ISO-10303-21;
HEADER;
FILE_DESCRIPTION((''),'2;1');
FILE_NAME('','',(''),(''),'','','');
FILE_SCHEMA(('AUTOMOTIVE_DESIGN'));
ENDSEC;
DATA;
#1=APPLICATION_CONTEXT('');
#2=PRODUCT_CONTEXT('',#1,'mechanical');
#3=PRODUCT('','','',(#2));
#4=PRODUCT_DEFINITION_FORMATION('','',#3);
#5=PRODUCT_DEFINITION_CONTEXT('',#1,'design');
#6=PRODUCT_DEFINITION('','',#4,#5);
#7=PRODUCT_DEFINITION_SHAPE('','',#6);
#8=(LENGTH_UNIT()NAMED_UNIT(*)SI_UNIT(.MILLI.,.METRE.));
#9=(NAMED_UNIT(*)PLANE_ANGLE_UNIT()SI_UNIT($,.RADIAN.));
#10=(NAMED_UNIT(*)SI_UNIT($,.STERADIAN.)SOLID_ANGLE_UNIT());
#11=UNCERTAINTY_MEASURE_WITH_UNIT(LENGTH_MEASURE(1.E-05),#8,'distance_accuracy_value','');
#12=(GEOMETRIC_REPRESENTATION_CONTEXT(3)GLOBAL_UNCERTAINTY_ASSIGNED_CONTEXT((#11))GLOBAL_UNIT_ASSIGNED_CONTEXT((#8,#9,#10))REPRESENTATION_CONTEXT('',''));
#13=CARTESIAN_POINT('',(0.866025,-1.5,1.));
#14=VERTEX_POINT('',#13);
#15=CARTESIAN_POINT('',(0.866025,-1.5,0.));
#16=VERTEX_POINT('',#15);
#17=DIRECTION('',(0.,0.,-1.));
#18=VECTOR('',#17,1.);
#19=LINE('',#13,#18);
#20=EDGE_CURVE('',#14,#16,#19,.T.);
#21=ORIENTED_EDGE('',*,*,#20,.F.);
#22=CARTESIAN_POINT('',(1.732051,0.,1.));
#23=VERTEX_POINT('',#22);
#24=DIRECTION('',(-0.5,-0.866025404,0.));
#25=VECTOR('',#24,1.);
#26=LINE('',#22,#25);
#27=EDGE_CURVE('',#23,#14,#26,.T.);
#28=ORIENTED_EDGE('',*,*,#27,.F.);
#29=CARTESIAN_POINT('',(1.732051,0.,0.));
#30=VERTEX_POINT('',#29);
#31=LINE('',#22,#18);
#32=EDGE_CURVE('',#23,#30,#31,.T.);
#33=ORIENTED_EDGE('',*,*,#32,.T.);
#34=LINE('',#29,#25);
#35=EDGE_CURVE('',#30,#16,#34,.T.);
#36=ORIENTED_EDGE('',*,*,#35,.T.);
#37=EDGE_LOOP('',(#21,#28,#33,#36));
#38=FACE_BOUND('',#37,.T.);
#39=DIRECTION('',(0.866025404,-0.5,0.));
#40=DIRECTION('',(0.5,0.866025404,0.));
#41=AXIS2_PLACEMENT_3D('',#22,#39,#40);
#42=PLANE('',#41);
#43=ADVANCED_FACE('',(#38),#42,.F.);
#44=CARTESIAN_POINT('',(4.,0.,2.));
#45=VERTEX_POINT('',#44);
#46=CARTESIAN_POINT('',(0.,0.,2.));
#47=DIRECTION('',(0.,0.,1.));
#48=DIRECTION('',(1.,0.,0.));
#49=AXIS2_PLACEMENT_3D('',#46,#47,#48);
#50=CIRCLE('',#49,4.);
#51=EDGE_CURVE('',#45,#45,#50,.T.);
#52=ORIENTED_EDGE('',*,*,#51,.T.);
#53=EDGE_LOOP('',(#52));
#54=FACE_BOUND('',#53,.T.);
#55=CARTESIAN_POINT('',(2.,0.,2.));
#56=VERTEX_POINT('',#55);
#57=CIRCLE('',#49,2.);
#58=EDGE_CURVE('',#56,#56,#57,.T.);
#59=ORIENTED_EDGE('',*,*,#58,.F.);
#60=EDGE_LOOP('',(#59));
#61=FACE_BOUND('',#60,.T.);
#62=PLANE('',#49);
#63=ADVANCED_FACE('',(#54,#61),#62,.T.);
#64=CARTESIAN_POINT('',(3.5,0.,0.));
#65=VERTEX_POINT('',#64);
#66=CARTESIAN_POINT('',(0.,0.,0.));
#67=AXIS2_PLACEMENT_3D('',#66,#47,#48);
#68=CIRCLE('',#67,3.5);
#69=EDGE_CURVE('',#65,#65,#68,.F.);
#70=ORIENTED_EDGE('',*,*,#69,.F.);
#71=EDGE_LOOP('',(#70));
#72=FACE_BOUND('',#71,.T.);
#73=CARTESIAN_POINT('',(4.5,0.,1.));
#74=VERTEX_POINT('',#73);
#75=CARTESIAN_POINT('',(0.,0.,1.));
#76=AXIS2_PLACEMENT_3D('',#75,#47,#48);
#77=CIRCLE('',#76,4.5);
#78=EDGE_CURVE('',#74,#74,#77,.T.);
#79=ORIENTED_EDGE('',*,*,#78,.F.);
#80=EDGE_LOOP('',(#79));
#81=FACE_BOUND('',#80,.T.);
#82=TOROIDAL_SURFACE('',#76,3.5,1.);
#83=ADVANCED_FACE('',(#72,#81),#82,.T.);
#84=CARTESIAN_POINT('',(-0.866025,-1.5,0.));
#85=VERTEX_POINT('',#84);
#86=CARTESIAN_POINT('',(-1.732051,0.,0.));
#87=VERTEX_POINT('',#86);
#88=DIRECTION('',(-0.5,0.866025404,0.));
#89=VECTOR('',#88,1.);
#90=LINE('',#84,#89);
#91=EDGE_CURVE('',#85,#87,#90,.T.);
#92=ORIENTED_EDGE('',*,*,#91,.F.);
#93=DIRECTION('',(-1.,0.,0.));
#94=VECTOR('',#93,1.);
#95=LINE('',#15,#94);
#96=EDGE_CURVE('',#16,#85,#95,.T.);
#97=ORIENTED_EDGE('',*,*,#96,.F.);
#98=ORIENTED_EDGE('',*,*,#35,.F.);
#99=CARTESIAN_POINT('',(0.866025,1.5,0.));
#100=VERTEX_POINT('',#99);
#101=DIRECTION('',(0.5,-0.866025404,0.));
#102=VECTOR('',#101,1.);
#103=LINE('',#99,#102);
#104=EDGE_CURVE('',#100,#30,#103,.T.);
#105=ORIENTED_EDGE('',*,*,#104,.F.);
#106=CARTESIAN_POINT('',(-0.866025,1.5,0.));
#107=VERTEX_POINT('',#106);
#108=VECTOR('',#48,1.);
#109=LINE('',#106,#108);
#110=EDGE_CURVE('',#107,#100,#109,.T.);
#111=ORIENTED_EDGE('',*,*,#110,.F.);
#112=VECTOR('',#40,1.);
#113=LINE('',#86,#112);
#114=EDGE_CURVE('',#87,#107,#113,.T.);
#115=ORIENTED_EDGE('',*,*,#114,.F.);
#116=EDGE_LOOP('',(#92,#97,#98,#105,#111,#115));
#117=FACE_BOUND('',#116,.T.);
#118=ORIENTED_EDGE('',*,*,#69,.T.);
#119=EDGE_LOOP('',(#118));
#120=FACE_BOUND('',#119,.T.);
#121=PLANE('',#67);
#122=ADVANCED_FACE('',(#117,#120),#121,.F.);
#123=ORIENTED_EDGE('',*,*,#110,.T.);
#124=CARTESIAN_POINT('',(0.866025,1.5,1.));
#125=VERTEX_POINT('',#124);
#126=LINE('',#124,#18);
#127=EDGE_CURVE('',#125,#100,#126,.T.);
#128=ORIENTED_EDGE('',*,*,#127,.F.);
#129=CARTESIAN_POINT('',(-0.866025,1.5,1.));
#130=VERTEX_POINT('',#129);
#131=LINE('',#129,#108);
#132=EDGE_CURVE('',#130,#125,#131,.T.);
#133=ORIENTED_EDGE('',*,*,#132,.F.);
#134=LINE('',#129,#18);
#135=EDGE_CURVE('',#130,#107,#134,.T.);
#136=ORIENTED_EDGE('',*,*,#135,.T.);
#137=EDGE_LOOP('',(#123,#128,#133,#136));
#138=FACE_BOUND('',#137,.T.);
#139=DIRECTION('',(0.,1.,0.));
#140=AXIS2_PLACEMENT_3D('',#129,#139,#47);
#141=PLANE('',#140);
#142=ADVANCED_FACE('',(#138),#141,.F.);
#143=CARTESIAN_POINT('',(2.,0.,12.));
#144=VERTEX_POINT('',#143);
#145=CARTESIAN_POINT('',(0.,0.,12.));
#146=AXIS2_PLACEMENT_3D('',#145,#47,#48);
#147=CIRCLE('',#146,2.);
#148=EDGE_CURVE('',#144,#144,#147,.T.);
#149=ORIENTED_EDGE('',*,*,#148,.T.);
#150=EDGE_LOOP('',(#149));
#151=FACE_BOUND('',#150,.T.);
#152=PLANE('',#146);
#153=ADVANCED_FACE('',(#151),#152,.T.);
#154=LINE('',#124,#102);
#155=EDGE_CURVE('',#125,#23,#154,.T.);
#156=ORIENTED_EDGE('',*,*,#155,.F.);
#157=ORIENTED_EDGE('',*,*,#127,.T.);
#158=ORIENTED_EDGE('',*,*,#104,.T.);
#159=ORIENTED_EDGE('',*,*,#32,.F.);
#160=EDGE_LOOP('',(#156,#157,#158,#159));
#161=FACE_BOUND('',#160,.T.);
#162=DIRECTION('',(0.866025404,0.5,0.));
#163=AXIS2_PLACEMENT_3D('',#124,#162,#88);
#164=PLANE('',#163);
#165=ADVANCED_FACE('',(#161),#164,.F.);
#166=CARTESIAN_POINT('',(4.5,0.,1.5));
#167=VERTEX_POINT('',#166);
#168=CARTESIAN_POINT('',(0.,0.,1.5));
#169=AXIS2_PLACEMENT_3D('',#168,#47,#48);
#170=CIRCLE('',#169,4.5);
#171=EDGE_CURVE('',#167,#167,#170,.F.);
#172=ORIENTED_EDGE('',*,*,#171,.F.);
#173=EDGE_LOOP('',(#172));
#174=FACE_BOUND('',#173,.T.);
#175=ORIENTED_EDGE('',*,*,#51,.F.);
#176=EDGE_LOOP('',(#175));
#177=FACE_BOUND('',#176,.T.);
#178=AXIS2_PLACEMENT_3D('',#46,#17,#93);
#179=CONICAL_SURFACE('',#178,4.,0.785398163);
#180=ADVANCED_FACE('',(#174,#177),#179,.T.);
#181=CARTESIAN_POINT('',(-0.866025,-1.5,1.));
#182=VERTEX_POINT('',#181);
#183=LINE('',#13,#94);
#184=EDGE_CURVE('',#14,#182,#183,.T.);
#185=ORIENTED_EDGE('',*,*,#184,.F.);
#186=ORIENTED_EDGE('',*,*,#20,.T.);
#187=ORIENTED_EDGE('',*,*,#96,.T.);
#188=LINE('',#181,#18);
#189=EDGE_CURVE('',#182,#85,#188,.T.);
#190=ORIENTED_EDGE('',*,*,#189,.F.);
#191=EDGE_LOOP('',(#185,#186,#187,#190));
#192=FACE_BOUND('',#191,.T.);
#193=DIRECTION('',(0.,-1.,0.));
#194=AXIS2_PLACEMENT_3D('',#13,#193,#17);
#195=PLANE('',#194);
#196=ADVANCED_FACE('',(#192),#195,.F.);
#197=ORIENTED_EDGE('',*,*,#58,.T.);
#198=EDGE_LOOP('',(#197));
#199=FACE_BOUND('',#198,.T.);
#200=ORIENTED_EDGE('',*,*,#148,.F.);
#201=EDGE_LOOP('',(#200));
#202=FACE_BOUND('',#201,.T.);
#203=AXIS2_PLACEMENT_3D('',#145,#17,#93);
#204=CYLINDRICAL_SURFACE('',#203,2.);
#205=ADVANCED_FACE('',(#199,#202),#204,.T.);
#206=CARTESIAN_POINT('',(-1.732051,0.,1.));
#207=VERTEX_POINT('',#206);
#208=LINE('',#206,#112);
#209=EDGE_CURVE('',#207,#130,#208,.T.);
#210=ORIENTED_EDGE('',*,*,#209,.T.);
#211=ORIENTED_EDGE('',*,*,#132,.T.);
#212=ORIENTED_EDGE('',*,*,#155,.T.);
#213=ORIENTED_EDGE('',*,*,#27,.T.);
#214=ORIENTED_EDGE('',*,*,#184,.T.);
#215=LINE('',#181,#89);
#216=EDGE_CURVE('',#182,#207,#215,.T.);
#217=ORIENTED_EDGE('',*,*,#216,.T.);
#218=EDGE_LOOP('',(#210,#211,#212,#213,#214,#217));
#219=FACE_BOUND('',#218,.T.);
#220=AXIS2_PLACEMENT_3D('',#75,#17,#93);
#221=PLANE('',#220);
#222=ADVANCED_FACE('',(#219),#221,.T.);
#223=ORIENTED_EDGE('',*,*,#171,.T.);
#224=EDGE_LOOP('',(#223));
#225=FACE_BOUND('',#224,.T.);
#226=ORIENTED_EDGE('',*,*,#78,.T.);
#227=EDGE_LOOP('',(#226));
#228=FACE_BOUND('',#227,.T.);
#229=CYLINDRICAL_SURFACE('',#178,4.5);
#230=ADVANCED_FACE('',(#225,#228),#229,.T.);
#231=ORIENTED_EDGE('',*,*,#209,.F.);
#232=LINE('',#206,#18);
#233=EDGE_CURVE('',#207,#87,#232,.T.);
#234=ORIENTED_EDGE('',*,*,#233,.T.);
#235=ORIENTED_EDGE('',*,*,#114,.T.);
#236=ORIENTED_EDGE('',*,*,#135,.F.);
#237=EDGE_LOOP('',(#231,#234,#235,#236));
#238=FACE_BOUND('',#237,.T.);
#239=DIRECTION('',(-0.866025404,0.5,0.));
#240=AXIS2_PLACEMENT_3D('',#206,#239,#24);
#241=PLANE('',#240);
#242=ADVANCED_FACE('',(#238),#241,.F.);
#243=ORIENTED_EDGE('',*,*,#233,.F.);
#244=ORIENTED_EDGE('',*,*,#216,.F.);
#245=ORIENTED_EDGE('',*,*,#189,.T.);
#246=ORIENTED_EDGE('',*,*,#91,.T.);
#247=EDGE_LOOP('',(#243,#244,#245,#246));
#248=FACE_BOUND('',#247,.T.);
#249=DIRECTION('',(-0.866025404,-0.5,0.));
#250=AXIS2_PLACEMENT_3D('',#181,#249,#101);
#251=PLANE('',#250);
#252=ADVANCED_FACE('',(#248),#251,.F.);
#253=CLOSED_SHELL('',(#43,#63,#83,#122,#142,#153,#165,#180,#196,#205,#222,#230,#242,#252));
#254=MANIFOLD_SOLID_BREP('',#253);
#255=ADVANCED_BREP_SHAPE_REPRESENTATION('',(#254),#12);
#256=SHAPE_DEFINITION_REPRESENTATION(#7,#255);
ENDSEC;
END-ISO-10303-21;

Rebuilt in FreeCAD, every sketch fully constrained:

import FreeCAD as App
import Part
import Sketcher

V = App.Vector
Q = App.Units.Quantity


def edges_at(feature, points):
    """Names of the edges that pass closest to the given points."""
    edges = feature.Shape.Edges
    near = lambda p: min(range(len(edges)), key=lambda i: edges[i].distToShape(Part.Vertex(*p))[0])
    return sorted({f"Edge{near(p) + 1}" for p in points})

doc = App.newDocument("Part")
body = doc.addObject("PartDesign::Body", "Body")

# Sketch on XY plane
sketch1 = body.newObject("Sketcher::SketchObject", "Sketch")
sketch1.AttachmentSupport = (doc.getObject("XY_Plane"), [""])
sketch1.MapMode = "FlatFace"
sketch1.addGeometry(Part.Circle(V(0, 0, 0), V(0, 0, 1), 4.5), False)
sketch1.addConstraint([
    Sketcher.Constraint("Coincident", 0, 3, -1, 1),
    Sketcher.Constraint("Diameter", 0, Q("9 mm")),
])
pad1 = body.newObject("PartDesign::Pad", "Pad")
pad1.Profile = sketch1
pad1.Length = 2

# Sketch on XY plane
sketch2 = body.newObject("Sketcher::SketchObject", "Sketch001")
sketch2.AttachmentSupport = (doc.getObject("XY_Plane"), [""])
sketch2.MapMode = "FlatFace"
sketch2.AttachmentOffset = App.Placement(V(0, 0, 2), App.Rotation())
sketch2.addGeometry(Part.Circle(V(0, 0, 0), V(0, 0, 1), 2), False)
sketch2.addConstraint([
    Sketcher.Constraint("Coincident", 0, 3, -1, 1),
    Sketcher.Constraint("Diameter", 0, Q("4 mm")),
])
pad2 = body.newObject("PartDesign::Pad", "Pad001")
pad2.Profile = sketch2
pad2.Length = 10
doc.recompute()

fillet = body.newObject("PartDesign::Fillet", "Fillet")
fillet.Base = (pad2, edges_at(pad2, [(-4.5, 0, 0)]))
fillet.Radius = 1
doc.recompute()

chamfer = body.newObject("PartDesign::Chamfer", "Chamfer")
chamfer.Base = (fillet, edges_at(fillet, [(-4.5, 0, 2)]))
chamfer.Size = 0.5

# Sketch on XY plane
sketch3 = body.newObject("Sketcher::SketchObject", "Sketch002")
sketch3.AttachmentSupport = (doc.getObject("XY_Plane"), [""])
sketch3.MapMode = "FlatFace"
sketch3.addGeometry([
    Part.LineSegment(V(0.866025, 1.5, 0), V(1.732051, 0, 0)),  # 0
    Part.LineSegment(V(1.732051, 0, 0), V(0.866025, -1.5, 0)),  # 1
    Part.LineSegment(V(0.866025, -1.5, 0), V(-0.866025, -1.5, 0)),  # 2
    Part.LineSegment(V(-0.866025, -1.5, 0), V(-1.732051, 0, 0)),  # 3
    Part.LineSegment(V(-1.732051, 0, 0), V(-0.866025, 1.5, 0)),  # 4
    Part.LineSegment(V(-0.866025, 1.5, 0), V(0.866025, 1.5, 0)),  # 5
], False)
sketch3.addConstraint([
    Sketcher.Constraint("Coincident", 0, 2, 1, 1),
    Sketcher.Constraint("Coincident", 1, 2, 2, 1),
    Sketcher.Constraint("Coincident", 2, 2, 3, 1),
    Sketcher.Constraint("Coincident", 3, 2, 4, 1),
    Sketcher.Constraint("Coincident", 4, 2, 5, 1),
    Sketcher.Constraint("Coincident", 5, 2, 0, 1),
    Sketcher.Constraint("Horizontal", 2),
    Sketcher.Constraint("Horizontal", 5),
    Sketcher.Constraint("Symmetric", 0, 2, 3, 2, -1, 1),
    Sketcher.Constraint("Symmetric", 1, 2, 4, 2, -1, 1),
    Sketcher.Constraint("PointOnObject", 0, 2, -1),
    Sketcher.Constraint("Parallel", 0, 3),
    Sketcher.Constraint("Vertical", 2, 2, 4, 2),
    Sketcher.Constraint("Angle", 0, Q("-60 deg")),
    Sketcher.Constraint("DistanceY", 2, 2, 4, 2, Q("3 mm")),
    Sketcher.Constraint("DistanceX", 2, 2, 2, 1, Q("1.732051 mm")),
])
pocket1 = body.newObject("PartDesign::Pocket", "Pocket")
pocket1.Profile = sketch3
pocket1.Length = 1
pocket1.Reversed = True

doc.recompute()
